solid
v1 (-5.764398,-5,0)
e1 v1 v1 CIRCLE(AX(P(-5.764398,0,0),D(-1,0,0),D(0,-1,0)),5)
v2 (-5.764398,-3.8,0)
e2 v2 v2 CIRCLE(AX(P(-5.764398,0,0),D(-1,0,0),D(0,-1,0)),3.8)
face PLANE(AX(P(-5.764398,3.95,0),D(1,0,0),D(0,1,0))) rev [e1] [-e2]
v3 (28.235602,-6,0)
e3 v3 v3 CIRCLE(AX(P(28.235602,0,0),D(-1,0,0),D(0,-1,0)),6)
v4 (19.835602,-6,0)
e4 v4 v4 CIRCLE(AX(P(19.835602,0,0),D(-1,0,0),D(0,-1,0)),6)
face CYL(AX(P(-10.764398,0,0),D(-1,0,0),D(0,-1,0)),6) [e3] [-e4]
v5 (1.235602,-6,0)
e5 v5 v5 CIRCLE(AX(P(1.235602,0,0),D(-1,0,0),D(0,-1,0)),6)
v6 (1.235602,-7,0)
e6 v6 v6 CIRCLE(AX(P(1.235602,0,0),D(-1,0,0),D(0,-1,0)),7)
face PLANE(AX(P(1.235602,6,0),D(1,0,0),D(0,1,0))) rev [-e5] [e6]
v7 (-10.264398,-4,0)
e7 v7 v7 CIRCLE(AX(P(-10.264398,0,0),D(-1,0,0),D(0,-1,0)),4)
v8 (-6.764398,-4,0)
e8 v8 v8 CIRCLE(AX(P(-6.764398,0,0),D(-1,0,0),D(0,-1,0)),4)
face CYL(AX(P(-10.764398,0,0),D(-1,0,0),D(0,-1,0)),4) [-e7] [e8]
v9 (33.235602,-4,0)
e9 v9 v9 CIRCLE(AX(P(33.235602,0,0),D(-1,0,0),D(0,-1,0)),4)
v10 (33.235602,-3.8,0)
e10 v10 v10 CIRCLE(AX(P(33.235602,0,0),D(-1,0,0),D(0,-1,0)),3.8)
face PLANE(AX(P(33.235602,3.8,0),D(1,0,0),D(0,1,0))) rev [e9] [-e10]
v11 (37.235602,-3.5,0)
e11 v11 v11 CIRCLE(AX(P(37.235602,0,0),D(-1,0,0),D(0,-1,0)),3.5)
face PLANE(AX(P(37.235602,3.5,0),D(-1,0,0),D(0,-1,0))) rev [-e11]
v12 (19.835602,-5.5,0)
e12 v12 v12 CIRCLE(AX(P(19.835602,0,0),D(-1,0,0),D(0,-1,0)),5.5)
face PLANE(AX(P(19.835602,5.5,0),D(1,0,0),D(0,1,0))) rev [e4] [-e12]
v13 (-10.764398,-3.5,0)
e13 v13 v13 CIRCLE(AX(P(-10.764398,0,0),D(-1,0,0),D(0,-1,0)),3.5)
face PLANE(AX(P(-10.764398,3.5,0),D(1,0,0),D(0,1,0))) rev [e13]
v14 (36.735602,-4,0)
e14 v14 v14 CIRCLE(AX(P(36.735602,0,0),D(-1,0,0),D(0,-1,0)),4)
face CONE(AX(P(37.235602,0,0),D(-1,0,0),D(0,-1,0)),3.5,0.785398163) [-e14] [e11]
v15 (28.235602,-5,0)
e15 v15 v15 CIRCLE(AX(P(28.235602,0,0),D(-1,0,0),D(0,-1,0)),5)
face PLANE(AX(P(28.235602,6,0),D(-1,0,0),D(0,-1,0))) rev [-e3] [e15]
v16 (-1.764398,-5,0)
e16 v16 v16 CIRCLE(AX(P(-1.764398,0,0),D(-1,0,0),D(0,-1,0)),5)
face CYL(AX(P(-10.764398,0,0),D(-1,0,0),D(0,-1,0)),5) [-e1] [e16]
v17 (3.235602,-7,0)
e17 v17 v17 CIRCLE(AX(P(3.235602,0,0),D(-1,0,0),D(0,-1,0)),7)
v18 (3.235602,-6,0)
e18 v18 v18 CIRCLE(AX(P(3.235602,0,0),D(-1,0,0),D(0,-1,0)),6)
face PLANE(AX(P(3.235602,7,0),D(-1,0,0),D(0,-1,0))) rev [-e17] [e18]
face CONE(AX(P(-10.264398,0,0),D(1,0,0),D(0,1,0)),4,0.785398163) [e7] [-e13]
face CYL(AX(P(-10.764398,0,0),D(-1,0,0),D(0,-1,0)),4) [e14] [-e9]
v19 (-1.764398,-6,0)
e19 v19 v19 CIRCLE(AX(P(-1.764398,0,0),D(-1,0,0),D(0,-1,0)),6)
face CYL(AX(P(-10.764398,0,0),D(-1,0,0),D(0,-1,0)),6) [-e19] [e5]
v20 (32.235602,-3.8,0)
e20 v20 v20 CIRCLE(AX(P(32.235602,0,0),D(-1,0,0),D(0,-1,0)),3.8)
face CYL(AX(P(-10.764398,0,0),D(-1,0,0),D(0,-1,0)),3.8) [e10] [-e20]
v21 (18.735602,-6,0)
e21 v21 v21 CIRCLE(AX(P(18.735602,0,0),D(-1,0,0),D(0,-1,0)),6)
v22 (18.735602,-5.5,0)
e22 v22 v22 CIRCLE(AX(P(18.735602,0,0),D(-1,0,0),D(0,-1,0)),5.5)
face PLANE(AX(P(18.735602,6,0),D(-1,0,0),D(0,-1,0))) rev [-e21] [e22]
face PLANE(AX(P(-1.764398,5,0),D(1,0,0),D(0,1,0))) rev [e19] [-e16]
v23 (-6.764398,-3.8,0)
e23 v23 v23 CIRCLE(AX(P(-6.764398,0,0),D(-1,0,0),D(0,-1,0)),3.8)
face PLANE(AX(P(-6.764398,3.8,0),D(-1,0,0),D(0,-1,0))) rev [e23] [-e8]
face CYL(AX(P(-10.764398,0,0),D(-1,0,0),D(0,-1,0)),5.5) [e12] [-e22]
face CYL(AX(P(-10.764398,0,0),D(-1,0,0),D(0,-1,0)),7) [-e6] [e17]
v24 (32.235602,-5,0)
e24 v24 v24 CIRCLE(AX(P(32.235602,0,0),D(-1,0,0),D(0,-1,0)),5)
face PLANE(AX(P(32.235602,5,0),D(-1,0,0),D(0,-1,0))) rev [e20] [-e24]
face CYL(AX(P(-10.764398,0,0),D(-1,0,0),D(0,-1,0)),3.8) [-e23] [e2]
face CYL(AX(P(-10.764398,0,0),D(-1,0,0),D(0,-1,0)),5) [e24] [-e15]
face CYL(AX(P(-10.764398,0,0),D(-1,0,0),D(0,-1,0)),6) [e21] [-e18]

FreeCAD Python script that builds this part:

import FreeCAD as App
import Part
import Sketcher
from FreeCAD import Vector
Q = App.Units.Quantity

doc = App.newDocument("Part")
body = doc.addObject("PartDesign::Body", "Body")

# Sketch on XY plane
sketch1 = body.newObject("Sketcher::SketchObject", "Sketch")
sketch1.AttachmentSupport = (doc.getObject("XY_Plane"), [""])
sketch1.MapMode = "FlatFace"
sketch1.addGeometry([
    Part.LineSegment(Vector(-10.76, 0, 0), Vector(37.24, 0, 0)),  # 0
    Part.LineSegment(Vector(37.24, 0, 0), Vector(37.24, 3.5, 0)),  # 1
    Part.LineSegment(Vector(37.24, 3.5, 0), Vector(36.74, 4, 0)),  # 2
    Part.LineSegment(Vector(36.74, 4, 0), Vector(33.24, 4, 0)),  # 3
    Part.LineSegment(Vector(33.24, 4, 0), Vector(33.24, 3.8, 0)),  # 4
    Part.LineSegment(Vector(33.24, 3.8, 0), Vector(32.24, 3.8, 0)),  # 5
    Part.LineSegment(Vector(32.24, 3.8, 0), Vector(32.24, 5, 0)),  # 6
    Part.LineSegment(Vector(32.24, 5, 0), Vector(28.24, 5, 0)),  # 7
    Part.LineSegment(Vector(28.24, 5, 0), Vector(28.24, 6, 0)),  # 8
    Part.LineSegment(Vector(28.24, 6, 0), Vector(19.84, 6, 0)),  # 9
    Part.LineSegment(Vector(19.84, 6, 0), Vector(19.84, 5.5, 0)),  # 10
    Part.LineSegment(Vector(19.84, 5.5, 0), Vector(18.74, 5.5, 0)),  # 11
    Part.LineSegment(Vector(18.74, 5.5, 0), Vector(18.74, 6, 0)),  # 12
    Part.LineSegment(Vector(18.74, 6, 0), Vector(3.24, 6, 0)),  # 13
    Part.LineSegment(Vector(3.24, 6, 0), Vector(3.24, 7, 0)),  # 14
    Part.LineSegment(Vector(3.24, 7, 0), Vector(1.24, 7, 0)),  # 15
    Part.LineSegment(Vector(1.24, 7, 0), Vector(1.24, 6, 0)),  # 16
    Part.LineSegment(Vector(1.24, 6, 0), Vector(-1.76, 6, 0)),  # 17
    Part.LineSegment(Vector(-1.76, 6, 0), Vector(-1.76, 5, 0)),  # 18
    Part.LineSegment(Vector(-1.76, 5, 0), Vector(-5.76, 5, 0)),  # 19
    Part.LineSegment(Vector(-5.76, 5, 0), Vector(-5.76, 3.8, 0)),  # 20
    Part.LineSegment(Vector(-5.76, 3.8, 0), Vector(-6.76, 3.8, 0)),  # 21
    Part.LineSegment(Vector(-6.76, 3.8, 0), Vector(-6.76, 4, 0)),  # 22
    Part.LineSegment(Vector(-6.76, 4, 0), Vector(-10.26, 4, 0)),  # 23
    Part.LineSegment(Vector(-10.26, 4, 0), Vector(-10.76, 3.5, 0)),  # 24
    Part.LineSegment(Vector(-10.76, 3.5, 0), Vector(-10.76, 0, 0)),  # 25
], False)
sketch1.addConstraint([
    Sketcher.Constraint("Coincident", 0, 2, 1, 1),
    Sketcher.Constraint("Coincident", 1, 2, 2, 1),
    Sketcher.Constraint("Coincident", 2, 2, 3, 1),
    Sketcher.Constraint("Coincident", 3, 2, 4, 1),
    Sketcher.Constraint("Coincident", 4, 2, 5, 1),
    Sketcher.Constraint("Coincident", 5, 2, 6, 1),
    Sketcher.Constraint("Coincident", 6, 2, 7, 1),
    Sketcher.Constraint("Coincident", 7, 2, 8, 1),
    Sketcher.Constraint("Coincident", 8, 2, 9, 1),
    Sketcher.Constraint("Coincident", 9, 2, 10, 1),
    Sketcher.Constraint("Coincident", 10, 2, 11, 1),
    Sketcher.Constraint("Coincident", 11, 2, 12, 1),
    Sketcher.Constraint("Coincident", 12, 2, 13, 1),
    Sketcher.Constraint("Coincident", 13, 2, 14, 1),
    Sketcher.Constraint("Coincident", 14, 2, 15, 1),
    Sketcher.Constraint("Coincident", 15, 2, 16, 1),
    Sketcher.Constraint("Coincident", 16, 2, 17, 1),
    Sketcher.Constraint("Coincident", 17, 2, 18, 1),
    Sketcher.Constraint("Coincident", 18, 2, 19, 1),
    Sketcher.Constraint("Coincident", 19, 2, 20, 1),
    Sketcher.Constraint("Coincident", 20, 2, 21, 1),
    Sketcher.Constraint("Coincident", 21, 2, 22, 1),
    Sketcher.Constraint("Coincident", 22, 2, 23, 1),
    Sketcher.Constraint("Coincident", 23, 2, 24, 1),
    Sketcher.Constraint("Coincident", 24, 2, 25, 1),
    Sketcher.Constraint("Coincident", 25, 2, 0, 1),
    Sketcher.Constraint("Horizontal", 0),
    Sketcher.Constraint("Vertical", 1),
    Sketcher.Constraint("Horizontal", 3),
    Sketcher.Constraint("Vertical", 4),
    Sketcher.Constraint("Horizontal", 5),
    Sketcher.Constraint("Vertical", 6),
    Sketcher.Constraint("Horizontal", 7),
    Sketcher.Constraint("Vertical", 8),
    Sketcher.Constraint("Horizontal", 9),
    Sketcher.Constraint("Vertical", 10),
    Sketcher.Constraint("Horizontal", 11),
    Sketcher.Constraint("Vertical", 12),
    Sketcher.Constraint("Horizontal", 13),
    Sketcher.Constraint("Vertical", 14),
    Sketcher.Constraint("Horizontal", 15),
    Sketcher.Constraint("Vertical", 16),
    Sketcher.Constraint("Horizontal", 17),
    Sketcher.Constraint("Vertical", 18),
    Sketcher.Constraint("Horizontal", 19),
    Sketcher.Constraint("Vertical", 20),
    Sketcher.Constraint("Horizontal", 21),
    Sketcher.Constraint("Vertical", 22),
    Sketcher.Constraint("Horizontal", 23),
    Sketcher.Constraint("Vertical", 25),
    Sketcher.Constraint("PointOnObject", 0, 2, -1),
    Sketcher.Constraint("Perpendicular", 2, 24),
    Sketcher.Constraint("Horizontal", 9, 2, 12, 2),
    Sketcher.Constraint("Horizontal", 13, 2, 16, 2),
    Sketcher.Constraint("Horizontal", 7, 2, 18, 2),
    Sketcher.Constraint("Horizontal", 5, 2, 20, 2),
    Sketcher.Constraint("Horizontal", 3, 2, 22, 2),
    Sketcher.Constraint("Horizontal", 1, 2, 24, 2),
    Sketcher.Constraint("Equal", 7, 19),
    Sketcher.Constraint("Equal", 5, 21),
    Sketcher.Constraint("Equal", 3, 23),
    Sketcher.Constraint("Equal", 23, 1),
    Sketcher.Constraint("Equal", 21, 8),
    Sketcher.Constraint("Equal", 8, 14),
    Sketcher.Constraint("Equal", 2, 24),
    Sketcher.Constraint("DistanceX", 0, 1, 0, 2, Q("48 mm")),
    Sketcher.Constraint("DistanceX", 5, 2, 5, 1, Q("1 mm")),
    Sketcher.Constraint("DistanceX", 7, 2, 7, 1, Q("4 mm")),
    Sketcher.Constraint("DistanceX", 15, 2, 15, 1, Q("2 mm")),
    Sketcher.Constraint("DistanceX", 17, 2, 17, 1, Q("3 mm")),
    Sketcher.Constraint("DistanceX", 3, 2, 3, 1, Q("3.5 mm")),
    Sketcher.Constraint("DistanceX", 9, 2, 9, 1, Q("8.4 mm")),
    Sketcher.Constraint("DistanceX", 11, 2, 11, 1, Q("1.1 mm")),
    Sketcher.Constraint("DistanceX", 13, 2, 13, 1, Q("15.5 mm")),
    Sketcher.Constraint("DistanceY", 4, 2, 4, 1, Q("0.2 mm")),
    Sketcher.Constraint("DistanceY", 6, 1, 6, 2, Q("1.2 mm")),
    Sketcher.Constraint("DistanceY", 10, 2, 10, 1, Q("0.5 mm")),
    Sketcher.Constraint("DistanceX", -1, 1, 0, 2, Q("37.235602 mm")),
])
revolution = body.newObject("PartDesign::Revolution", "Revolution")
revolution.Profile = sketch1
revolution.ReferenceAxis = (sketch1, ["H_Axis"])
revolution.Angle = 360

doc.recompute()
